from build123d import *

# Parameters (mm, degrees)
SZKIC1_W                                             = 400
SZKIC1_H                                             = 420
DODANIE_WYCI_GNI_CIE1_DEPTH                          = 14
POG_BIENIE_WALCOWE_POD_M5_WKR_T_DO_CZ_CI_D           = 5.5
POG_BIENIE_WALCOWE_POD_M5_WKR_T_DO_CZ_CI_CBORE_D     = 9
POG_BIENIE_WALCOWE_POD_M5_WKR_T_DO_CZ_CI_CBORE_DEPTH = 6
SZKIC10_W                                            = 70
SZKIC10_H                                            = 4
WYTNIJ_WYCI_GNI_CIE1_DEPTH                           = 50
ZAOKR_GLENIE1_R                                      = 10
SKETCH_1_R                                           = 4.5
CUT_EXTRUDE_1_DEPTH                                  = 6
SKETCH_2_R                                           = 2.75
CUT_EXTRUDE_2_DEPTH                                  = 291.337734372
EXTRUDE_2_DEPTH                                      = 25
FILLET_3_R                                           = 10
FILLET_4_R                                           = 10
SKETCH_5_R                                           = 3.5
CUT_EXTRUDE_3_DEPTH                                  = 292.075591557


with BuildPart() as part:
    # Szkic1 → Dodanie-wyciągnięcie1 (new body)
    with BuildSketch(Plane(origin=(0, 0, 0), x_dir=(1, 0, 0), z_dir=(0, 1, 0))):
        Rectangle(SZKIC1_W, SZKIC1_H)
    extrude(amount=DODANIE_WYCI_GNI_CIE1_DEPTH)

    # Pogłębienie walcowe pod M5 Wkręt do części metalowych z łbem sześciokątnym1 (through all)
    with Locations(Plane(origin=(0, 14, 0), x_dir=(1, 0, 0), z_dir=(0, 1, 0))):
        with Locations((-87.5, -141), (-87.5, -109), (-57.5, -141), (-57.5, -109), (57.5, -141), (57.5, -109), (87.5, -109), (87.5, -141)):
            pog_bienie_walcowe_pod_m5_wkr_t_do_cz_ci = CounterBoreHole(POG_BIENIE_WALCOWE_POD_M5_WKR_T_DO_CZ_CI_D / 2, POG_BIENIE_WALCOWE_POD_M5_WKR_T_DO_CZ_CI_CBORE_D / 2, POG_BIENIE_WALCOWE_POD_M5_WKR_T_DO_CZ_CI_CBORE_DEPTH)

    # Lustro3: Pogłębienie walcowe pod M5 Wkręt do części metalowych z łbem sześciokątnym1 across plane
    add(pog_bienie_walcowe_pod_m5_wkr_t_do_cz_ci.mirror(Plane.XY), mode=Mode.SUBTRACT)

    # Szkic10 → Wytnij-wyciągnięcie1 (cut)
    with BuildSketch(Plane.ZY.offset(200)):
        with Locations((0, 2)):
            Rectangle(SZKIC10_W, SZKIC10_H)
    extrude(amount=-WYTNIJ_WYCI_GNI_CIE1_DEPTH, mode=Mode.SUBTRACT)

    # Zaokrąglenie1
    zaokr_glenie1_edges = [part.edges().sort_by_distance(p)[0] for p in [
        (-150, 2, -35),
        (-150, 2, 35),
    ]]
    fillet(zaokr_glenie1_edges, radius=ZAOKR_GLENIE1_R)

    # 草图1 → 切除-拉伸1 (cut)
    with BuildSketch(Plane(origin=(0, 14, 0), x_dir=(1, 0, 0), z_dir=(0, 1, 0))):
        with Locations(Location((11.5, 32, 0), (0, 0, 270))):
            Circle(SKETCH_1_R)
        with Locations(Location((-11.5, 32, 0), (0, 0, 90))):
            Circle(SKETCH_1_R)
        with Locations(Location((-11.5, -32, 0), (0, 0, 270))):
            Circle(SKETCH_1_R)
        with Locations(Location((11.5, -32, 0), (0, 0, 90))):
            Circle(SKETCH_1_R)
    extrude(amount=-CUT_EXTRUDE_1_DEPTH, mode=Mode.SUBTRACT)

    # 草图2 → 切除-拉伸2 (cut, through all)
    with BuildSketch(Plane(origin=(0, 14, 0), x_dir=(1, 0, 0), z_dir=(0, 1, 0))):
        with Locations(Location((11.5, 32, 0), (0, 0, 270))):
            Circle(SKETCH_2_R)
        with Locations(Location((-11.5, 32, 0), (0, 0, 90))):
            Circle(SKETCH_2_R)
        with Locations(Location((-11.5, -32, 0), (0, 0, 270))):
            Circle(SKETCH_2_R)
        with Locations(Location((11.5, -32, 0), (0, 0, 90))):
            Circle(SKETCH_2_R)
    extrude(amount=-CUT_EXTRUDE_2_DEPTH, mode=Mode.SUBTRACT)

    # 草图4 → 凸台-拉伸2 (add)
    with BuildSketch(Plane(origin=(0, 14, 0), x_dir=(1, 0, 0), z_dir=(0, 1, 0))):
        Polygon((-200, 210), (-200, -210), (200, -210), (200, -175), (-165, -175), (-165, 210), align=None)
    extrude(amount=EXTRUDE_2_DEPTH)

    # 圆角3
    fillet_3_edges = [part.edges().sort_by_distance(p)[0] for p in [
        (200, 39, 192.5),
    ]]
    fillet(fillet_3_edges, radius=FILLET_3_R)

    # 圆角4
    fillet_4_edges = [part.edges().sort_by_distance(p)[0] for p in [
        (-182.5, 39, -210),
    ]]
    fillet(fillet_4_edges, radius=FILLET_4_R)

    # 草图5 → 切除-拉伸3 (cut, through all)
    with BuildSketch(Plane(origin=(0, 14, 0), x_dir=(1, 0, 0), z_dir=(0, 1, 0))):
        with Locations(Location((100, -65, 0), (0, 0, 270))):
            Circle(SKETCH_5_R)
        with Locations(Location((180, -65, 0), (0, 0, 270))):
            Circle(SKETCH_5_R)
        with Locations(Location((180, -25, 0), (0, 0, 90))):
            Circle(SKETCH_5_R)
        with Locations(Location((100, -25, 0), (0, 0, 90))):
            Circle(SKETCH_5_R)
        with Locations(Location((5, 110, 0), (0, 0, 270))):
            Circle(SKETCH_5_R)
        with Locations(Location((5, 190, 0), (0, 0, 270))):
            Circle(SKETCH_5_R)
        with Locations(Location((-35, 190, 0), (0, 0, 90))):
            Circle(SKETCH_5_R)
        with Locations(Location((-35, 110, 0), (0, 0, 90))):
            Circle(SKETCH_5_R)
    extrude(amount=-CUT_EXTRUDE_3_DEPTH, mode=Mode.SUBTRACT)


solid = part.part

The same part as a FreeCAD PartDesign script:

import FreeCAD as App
import Part
import Sketcher
from FreeCAD import Vector
Q = App.Units.Quantity


def edges_at(feature, points):
    """Names of the edges that pass closest to the given points."""
    edges = feature.Shape.Edges
    near = lambda p: min(range(len(edges)), key=lambda i: edges[i].distToShape(Part.Vertex(*p))[0])
    return sorted({f"Edge{near(p) + 1}" for p in points})


def add_polygon(sketch, points):
    """Adds a closed chain of lines whose ends are joined by coincident constraints."""
    first, n = sketch.GeometryCount, len(points)
    for a, b in zip(points, points[1:] + points[:1]):
        sketch.addGeometry(Part.LineSegment(App.Vector(*a, 0), App.Vector(*b, 0)), False)
    for i in range(n):
        sketch.addConstraint(Sketcher.Constraint("Coincident", first + i, 2, first + (i + 1) % n, 1))

doc = App.newDocument("Part")
params = doc.addObject("Spreadsheet::Sheet", "Params")
for row, (alias, value) in enumerate([
    ("sketch1_width", "400 mm"),
    ("sketch1_height", "420 mm"),
    ("pad1_length", "14 mm"),
    ("sketch2_diameter", "5.5 mm"),
    ("hole_diameter", "5.5 mm"),
    ("hole_cbore_diameter", "9 mm"),
    ("hole_cbore_depth", "6 mm"),
    ("sketch3_width", "4 mm"),
    ("sketch3_height", "70 mm"),
    ("pocket1_length", "50 mm"),
    ("fillet_radius", "10 mm"),
    ("sketch4_diameter", "9 mm"),
    ("pocket2_length", "6 mm"),
    ("sketch5_diameter", "5.5 mm"),
    ("sketch6_width", "400 mm"),
    ("sketch6_width2", "365 mm"),
    ("sketch6_height", "420 mm"),
    ("pad2_length", "25 mm"),
    ("fillet2_radius", "10 mm"),
    ("fillet3_radius", "10 mm"),
    ("sketch7_diameter", "7 mm"),
], start=1):
    params.set(f"A{row}", alias)
    params.set(f"B{row}", "=" + value)
    params.setAlias(f"B{row}", alias)

body = doc.addObject("PartDesign::Body", "Body")

# Sketch on XZ plane
sketch1 = body.newObject("Sketcher::SketchObject", "Sketch")
sketch1.AttachmentSupport = (doc.getObject("XZ_Plane"), [""])
sketch1.MapMode = "FlatFace"
add_polygon(sketch1, [(-200, -210), (-200, 210), (200, 210), (200, -210)])  # lines 0-3
sketch1.addConstraint([
    Sketcher.Constraint("Vertical", 0),
    Sketcher.Constraint("Horizontal", 1),
    Sketcher.Constraint("Vertical", 2),
    Sketcher.Constraint("Horizontal", 3),
    Sketcher.Constraint("Symmetric", 0, 2, 2, 2, -1, 1),
    Sketcher.Constraint("DistanceX", 1, 1, 1, 2, Q("400 mm")),
    Sketcher.Constraint("DistanceY", 0, 1, 0, 2, Q("420 mm")),
])
sketch1.setExpression("Constraints[9]", "Params.sketch1_width")
sketch1.setExpression("Constraints[10]", "Params.sketch1_height")
pad1 = body.newObject("PartDesign::Pad", "Pad")
pad1.Profile = sketch1
pad1.setExpression("Length", "Params.pad1_length")
pad1.Reversed = True

# Sketch on XZ plane
sketch2 = body.newObject("Sketcher::SketchObject", "Sketch001")
sketch2.AttachmentSupport = (doc.getObject("XZ_Plane"), [""])
sketch2.MapMode = "FlatFace"
sketch2.AttachmentOffset = App.Placement(Vector(0, 0, -14), App.Rotation())
sketch2.addGeometry([
    Part.Circle(Vector(-87.5, 141, 0), Vector(0, 0, 1), 2.75),  # 0
    Part.Circle(Vector(-87.5, 109, 0), Vector(0, 0, 1), 2.75),  # 1
    Part.Circle(Vector(-57.5, 141, 0), Vector(0, 0, 1), 2.75),  # 2
    Part.Circle(Vector(-57.5, 109, 0), Vector(0, 0, 1), 2.75),  # 3
    Part.Circle(Vector(57.5, 141, 0), Vector(0, 0, 1), 2.75),  # 4
    Part.Circle(Vector(57.5, 109, 0), Vector(0, 0, 1), 2.75),  # 5
    Part.Circle(Vector(87.5, 109, 0), Vector(0, 0, 1), 2.75),  # 6
    Part.Circle(Vector(87.5, 141, 0), Vector(0, 0, 1), 2.75),  # 7
], False)
sketch2.addConstraint([
    Sketcher.Constraint("Equal", 0, 1),
    Sketcher.Constraint("Equal", 1, 2),
    Sketcher.Constraint("Equal", 2, 3),
    Sketcher.Constraint("Equal", 3, 4),
    Sketcher.Constraint("Equal", 4, 5),
    Sketcher.Constraint("Equal", 5, 6),
    Sketcher.Constraint("Equal", 6, 7),
    Sketcher.Constraint("Symmetric", 2, 3, 4, 3, -2),
    Sketcher.Constraint("Symmetric", 3, 3, 5, 3, -2),
    Sketcher.Constraint("Symmetric", 1, 3, 6, 3, -2),
    Sketcher.Constraint("Symmetric", 0, 3, 7, 3, -2),
    Sketcher.Constraint("Horizontal", 0, 3, 2, 3),
    Sketcher.Constraint("Horizontal", 1, 3, 3, 3),
    Sketcher.Constraint("Vertical", 0, 3, 1, 3),
    Sketcher.Constraint("Vertical", 2, 3, 3, 3),
    Sketcher.Constraint("Diameter", 0, Q("5.5 mm")),
    Sketcher.Constraint("DistanceY", -1, 1, 0, 3, Q("141 mm")),
    Sketcher.Constraint("DistanceY", -1, 1, 1, 3, Q("109 mm")),
    Sketcher.Constraint("DistanceX", 0, 3, 2, 3, Q("30 mm")),
    Sketcher.Constraint("DistanceX", 2, 3, 4, 3, Q("115 mm")),
])
sketch2.setExpression("Constraints[15]", "Params.sketch2_diameter")
doc.recompute()
hole = body.newObject("PartDesign::Hole", "Hole")
hole.Profile = sketch2
hole.ThreadType = "None"
hole.setExpression("Diameter", "Params.hole_diameter")
hole.DepthType = "ThroughAll"
hole.HoleCutType = "Counterbore"
hole.setExpression("HoleCutDiameter", "Params.hole_cbore_diameter")
hole.setExpression("HoleCutDepth", "Params.hole_cbore_depth")
hole.Reversed = True
doc.recompute()

mirrored = body.newObject("PartDesign::Mirrored", "Mirrored")
mirrored.Originals = [hole]
mirrored.MirrorPlane = (doc.getObject("XY_Plane"), [""])
body.Tip = mirrored

# Sketch on YZ plane
sketch3 = body.newObject("Sketcher::SketchObject", "Sketch002")
sketch3.AttachmentSupport = (doc.getObject("YZ_Plane"), [""])
sketch3.MapMode = "FlatFace"
sketch3.AttachmentOffset = App.Placement(Vector(0, 0, -200), App.Rotation())
add_polygon(sketch3, [(4, -35), (0, -35), (0, 35), (4, 35)])  # lines 0-3
sketch3.addConstraint([
    Sketcher.Constraint("Horizontal", 0),
    Sketcher.Constraint("Vertical", 1),
    Sketcher.Constraint("Horizontal", 2),
    Sketcher.Constraint("Vertical", 3),
    Sketcher.Constraint("Symmetric", 0, 2, 1, 2, -1, 1),
    Sketcher.Constraint("DistanceX", 0, 2, 0, 1, Q("4 mm")),
    Sketcher.Constraint("DistanceY", 1, 1, 1, 2, Q("70 mm")),
])
sketch3.setExpression("Constraints[9]", "Params.sketch3_width")
sketch3.setExpression("Constraints[10]", "Params.sketch3_height")
pocket1 = body.newObject("PartDesign::Pocket", "Pocket")
pocket1.Profile = sketch3
pocket1.setExpression("Length", "Params.pocket1_length")
pocket1.Reversed = True
doc.recompute()

fillet = body.newObject("PartDesign::Fillet", "Fillet")
fillet.Base = (pocket1, edges_at(pocket1, [(-150, 2, -35), (-150, 2, 35)]))
fillet.setExpression("Radius", "Params.fillet_radius")

# Sketch on XZ plane
sketch4 = body.newObject("Sketcher::SketchObject", "Sketch003")
sketch4.AttachmentSupport = (doc.getObject("XZ_Plane"), [""])
sketch4.MapMode = "FlatFace"
sketch4.AttachmentOffset = App.Placement(Vector(0, 0, -14), App.Rotation())
sketch4.addGeometry([
    Part.Circle(Vector(11.5, -32, 0), Vector(0, 0, 1), 4.5),
    Part.Circle(Vector(-11.5, -32, 0), Vector(0, 0, 1), 4.5),
    Part.Circle(Vector(-11.5, 32, 0), Vector(0, 0, 1), 4.5),
    Part.Circle(Vector(11.5, 32, 0), Vector(0, 0, 1), 4.5),
], False)
sketch4.addConstraint([
    Sketcher.Constraint("Equal", 0, 1),
    Sketcher.Constraint("Equal", 1, 2),
    Sketcher.Constraint("Equal", 2, 3),
    Sketcher.Constraint("Symmetric", 0, 3, 2, 3, -1, 1),
    Sketcher.Constraint("Symmetric", 1, 3, 3, 3, -1, 1),
    Sketcher.Constraint("Symmetric", 0, 3, 1, 3, -2),
    Sketcher.Constraint("Diameter", 0, Q("9 mm")),
    Sketcher.Constraint("DistanceY", 0, 3, -1, 1, Q("32 mm")),
    Sketcher.Constraint("DistanceX", 1, 3, 0, 3, Q("23 mm")),
])
sketch4.setExpression("Constraints[6]", "Params.sketch4_diameter")
pocket2 = body.newObject("PartDesign::Pocket", "Pocket001")
pocket2.Profile = sketch4
pocket2.setExpression("Length", "Params.pocket2_length")
pocket2.Reversed = True

# Sketch on XZ plane
sketch5 = body.newObject("Sketcher::SketchObject", "Sketch004")
sketch5.AttachmentSupport = (doc.getObject("XZ_Plane"), [""])
sketch5.MapMode = "FlatFace"
sketch5.AttachmentOffset = App.Placement(Vector(0, 0, -14), App.Rotation())
sketch5.addGeometry([
    Part.Circle(Vector(11.5, -32, 0), Vector(0, 0, 1), 2.75),
    Part.Circle(Vector(-11.5, -32, 0), Vector(0, 0, 1), 2.75),
    Part.Circle(Vector(-11.5, 32, 0), Vector(0, 0, 1), 2.75),
    Part.Circle(Vector(11.5, 32, 0), Vector(0, 0, 1), 2.75),
], False)
sketch5.addConstraint([
    Sketcher.Constraint("Equal", 0, 1),
    Sketcher.Constraint("Equal", 1, 2),
    Sketcher.Constraint("Equal", 2, 3),
    Sketcher.Constraint("Symmetric", 0, 3, 2, 3, -1, 1),
    Sketcher.Constraint("Symmetric", 1, 3, 3, 3, -1, 1),
    Sketcher.Constraint("Symmetric", 0, 3, 1, 3, -2),
    Sketcher.Constraint("Diameter", 0, Q("5.5 mm")),
    Sketcher.Constraint("DistanceY", 0, 3, -1, 1, Q("32 mm")),
    Sketcher.Constraint("DistanceX", 1, 3, 0, 3, Q("23 mm")),
])
sketch5.setExpression("Constraints[6]", "Params.sketch5_diameter")
pocket3 = body.newObject("PartDesign::Pocket", "Pocket002")
pocket3.Profile = sketch5
pocket3.Type = "ThroughAll"
pocket3.Reversed = True

# Sketch on XZ plane
sketch6 = body.newObject("Sketcher::SketchObject", "Sketch005")
sketch6.AttachmentSupport = (doc.getObject("XZ_Plane"), [""])
sketch6.MapMode = "FlatFace"
sketch6.AttachmentOffset = App.Placement(Vector(0, 0, -14), App.Rotation())
add_polygon(sketch6, [(-200, -210), (-200, 210), (200, 210), (200, 175), (-165, 175), (-165, -210)])  # lines 0-5
sketch6.addConstraint([
    Sketcher.Constraint("Vertical", 0),
    Sketcher.Constraint("Horizontal", 1),
    Sketcher.Constraint("Vertical", 2),
    Sketcher.Constraint("Horizontal", 3),
    Sketcher.Constraint("Vertical", 4),
    Sketcher.Constraint("Horizontal", 5),
    Sketcher.Constraint("Symmetric", 1, 2, 5, 2, -1, 1),
    Sketcher.Constraint("Equal", 5, 2),
    Sketcher.Constraint("DistanceX", 1, 1, 1, 2, Q("400 mm")),
    Sketcher.Constraint("DistanceX", 3, 2, 3, 1, Q("365 mm")),
    Sketcher.Constraint("DistanceY", 0, 1, 0, 2, Q("420 mm")),
])
sketch6.setExpression("Constraints[14]", "Params.sketch6_width")
sketch6.setExpression("Constraints[15]", "Params.sketch6_width2")
sketch6.setExpression("Constraints[16]", "Params.sketch6_height")
pad2 = body.newObject("PartDesign::Pad", "Pad001")
pad2.Profile = sketch6
pad2.setExpression("Length", "Params.pad2_length")
pad2.Reversed = True
doc.recompute()

fillet2 = body.newObject("PartDesign::Fillet", "Fillet001")
fillet2.Base = (pad2, edges_at(pad2, [(200, 39, 192.5)]))
fillet2.setExpression("Radius", "Params.fillet2_radius")
doc.recompute()

fillet3 = body.newObject("PartDesign::Fillet", "Fillet002")
fillet3.Base = (fillet2, edges_at(fillet2, [(-182.5, 39, -210)]))
fillet3.setExpression("Radius", "Params.fillet3_radius")

# Sketch on XZ plane
sketch7 = body.newObject("Sketcher::SketchObject", "Sketch006")
sketch7.AttachmentSupport = (doc.getObject("XZ_Plane"), [""])
sketch7.MapMode = "FlatFace"
sketch7.AttachmentOffset = App.Placement(Vector(0, 0, -14), App.Rotation())
sketch7.addGeometry([
    Part.Circle(Vector(100, 65, 0), Vector(0, 0, 1), 3.5),  # 0
    Part.Circle(Vector(180, 65, 0), Vector(0, 0, 1), 3.5),  # 1
    Part.Circle(Vector(180, 25, 0), Vector(0, 0, 1), 3.5),  # 2
    Part.Circle(Vector(100, 25, 0), Vector(0, 0, 1), 3.5),  # 3
    Part.Circle(Vector(5, -110, 0), Vector(0, 0, 1), 3.5),  # 4
    Part.Circle(Vector(5, -190, 0), Vector(0, 0, 1), 3.5),  # 5
    Part.Circle(Vector(-35, -190, 0), Vector(0, 0, 1), 3.5),  # 6
    Part.Circle(Vector(-35, -110, 0), Vector(0, 0, 1), 3.5),  # 7
], False)
sketch7.addConstraint([
    Sketcher.Constraint("Equal", 0, 1),
    Sketcher.Constraint("Equal", 1, 2),
    Sketcher.Constraint("Equal", 2, 3),
    Sketcher.Constraint("Equal", 3, 4),
    Sketcher.Constraint("Equal", 4, 5),
    Sketcher.Constraint("Equal", 5, 6),
    Sketcher.Constraint("Equal", 6, 7),
    Sketcher.Constraint("Horizontal", 0, 3, 1, 3),
    Sketcher.Constraint("Horizontal", 2, 3, 3, 3),
    Sketcher.Constraint("Horizontal", 5, 3, 6, 3),
    Sketcher.Constraint("Horizontal", 4, 3, 7, 3),
    Sketcher.Constraint("Vertical", 1, 3, 2, 3),
    Sketcher.Constraint("Vertical", 0, 3, 3, 3),
    Sketcher.Constraint("Vertical", 4, 3, 5, 3),
    Sketcher.Constraint("Vertical", 6, 3, 7, 3),
    Sketcher.Constraint("Diameter", 0, Q("7 mm")),
    Sketcher.Constraint("DistanceX", -1, 1, 0, 3, Q("100 mm")),
    Sketcher.Constraint("DistanceY", -1, 1, 0, 3, Q("65 mm")),
    Sketcher.Constraint("DistanceX", -1, 1, 1, 3, Q("180 mm")),
    Sketcher.Constraint("DistanceY", -1, 1, 2, 3, Q("25 mm")),
    Sketcher.Constraint("DistanceX", -1, 1, 4, 3, Q("5 mm")),
    Sketcher.Constraint("DistanceY", 4, 3, -1, 1, Q("110 mm")),
    Sketcher.Constraint("DistanceY", 5, 3, -1, 1, Q("190 mm")),
    Sketcher.Constraint("DistanceX", 6, 3, -1, 1, Q("35 mm")),
])
sketch7.setExpression("Constraints[15]", "Params.sketch7_diameter")
pocket4 = body.newObject("PartDesign::Pocket", "Pocket003")
pocket4.Profile = sketch7
pocket4.Type = "ThroughAll"
pocket4.Reversed = True

doc.recompute()
